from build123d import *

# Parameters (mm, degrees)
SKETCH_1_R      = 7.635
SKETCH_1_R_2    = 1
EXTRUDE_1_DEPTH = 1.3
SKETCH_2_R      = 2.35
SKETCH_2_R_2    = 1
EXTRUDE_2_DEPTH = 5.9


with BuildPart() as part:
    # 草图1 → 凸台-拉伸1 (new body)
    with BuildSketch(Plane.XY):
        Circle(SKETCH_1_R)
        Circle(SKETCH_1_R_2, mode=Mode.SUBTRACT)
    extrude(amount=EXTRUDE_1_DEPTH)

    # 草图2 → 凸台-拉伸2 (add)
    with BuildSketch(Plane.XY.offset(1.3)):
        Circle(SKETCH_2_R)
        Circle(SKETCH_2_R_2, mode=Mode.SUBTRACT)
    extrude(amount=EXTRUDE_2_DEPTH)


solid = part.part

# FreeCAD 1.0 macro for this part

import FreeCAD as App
import Part
import Sketcher

V = App.Vector
Q = App.Units.Quantity

doc = App.newDocument("Part")
params = doc.addObject("Spreadsheet::Sheet", "Params")
for row, (alias, value) in enumerate([
    ("sketch1_diameter", "2 mm"),
    ("sketch1_diameter2", "15.27 mm"),
    ("pad1_length", "1.3 mm"),
    ("sketch2_diameter", "2 mm"),
    ("sketch2_diameter2", "4.7 mm"),
    ("pad2_length", "5.9 mm"),
], start=1):
    params.set(f"A{row}", alias)
    params.set(f"B{row}", "=" + value)
    params.setAlias(f"B{row}", alias)

body = doc.addObject("PartDesign::Body", "Body")

# Sketch on XY plane
sketch1 = body.newObject("Sketcher::SketchObject", "Sketch")
sketch1.AttachmentSupport = (doc.getObject("XY_Plane"), [""])
sketch1.MapMode = "FlatFace"
sketch1.addGeometry(Part.Circle(V(0, 0, 0), V(0, 0, 1), 7.6), False)
sketch1.addGeometry(Part.Circle(V(0, 0, 0), V(0, 0, 1), 1), False)
sketch1.addConstraint(Sketcher.Constraint("Coincident", 0, 3, -1, 1))
sketch1.addConstraint(Sketcher.Constraint("Coincident", 1, 3, -1, 1))
sketch1.addConstraint(Sketcher.Constraint("Diameter", 1, Q("2 mm")))
sketch1.addConstraint(Sketcher.Constraint("Diameter", 0, Q("15.27 mm")))
sketch1.setExpression("Constraints[2]", "Params.sketch1_diameter")
sketch1.setExpression("Constraints[3]", "Params.sketch1_diameter2")
pad1 = body.newObject("PartDesign::Pad", "Pad")
pad1.Profile = sketch1
pad1.setExpression("Length", "Params.pad1_length")

# Sketch on XY plane
sketch2 = body.newObject("Sketcher::SketchObject", "Sketch001")
sketch2.AttachmentSupport = (doc.getObject("XY_Plane"), [""])
sketch2.MapMode = "FlatFace"
sketch2.AttachmentOffset = App.Placement(V(0, 0, 1.3), App.Rotation())
sketch2.addGeometry(Part.Circle(V(0, 0, 0), V(0, 0, 1), 2.4), False)
sketch2.addGeometry(Part.Circle(V(0, 0, 0), V(0, 0, 1), 1), False)
sketch2.addConstraint(Sketcher.Constraint("Coincident", 0, 3, -1, 1))
sketch2.addConstraint(Sketcher.Constraint("Coincident", 1, 3, -1, 1))
sketch2.addConstraint(Sketcher.Constraint("Diameter", 1, Q("2 mm")))
sketch2.addConstraint(Sketcher.Constraint("Diameter", 0, Q("4.7 mm")))
sketch2.setExpression("Constraints[2]", "Params.sketch2_diameter")
sketch2.setExpression("Constraints[3]", "Params.sketch2_diameter2")
pad2 = body.newObject("PartDesign::Pad", "Pad001")
pad2.Profile = sketch2
pad2.setExpression("Length", "Params.pad2_length")

doc.recompute()
